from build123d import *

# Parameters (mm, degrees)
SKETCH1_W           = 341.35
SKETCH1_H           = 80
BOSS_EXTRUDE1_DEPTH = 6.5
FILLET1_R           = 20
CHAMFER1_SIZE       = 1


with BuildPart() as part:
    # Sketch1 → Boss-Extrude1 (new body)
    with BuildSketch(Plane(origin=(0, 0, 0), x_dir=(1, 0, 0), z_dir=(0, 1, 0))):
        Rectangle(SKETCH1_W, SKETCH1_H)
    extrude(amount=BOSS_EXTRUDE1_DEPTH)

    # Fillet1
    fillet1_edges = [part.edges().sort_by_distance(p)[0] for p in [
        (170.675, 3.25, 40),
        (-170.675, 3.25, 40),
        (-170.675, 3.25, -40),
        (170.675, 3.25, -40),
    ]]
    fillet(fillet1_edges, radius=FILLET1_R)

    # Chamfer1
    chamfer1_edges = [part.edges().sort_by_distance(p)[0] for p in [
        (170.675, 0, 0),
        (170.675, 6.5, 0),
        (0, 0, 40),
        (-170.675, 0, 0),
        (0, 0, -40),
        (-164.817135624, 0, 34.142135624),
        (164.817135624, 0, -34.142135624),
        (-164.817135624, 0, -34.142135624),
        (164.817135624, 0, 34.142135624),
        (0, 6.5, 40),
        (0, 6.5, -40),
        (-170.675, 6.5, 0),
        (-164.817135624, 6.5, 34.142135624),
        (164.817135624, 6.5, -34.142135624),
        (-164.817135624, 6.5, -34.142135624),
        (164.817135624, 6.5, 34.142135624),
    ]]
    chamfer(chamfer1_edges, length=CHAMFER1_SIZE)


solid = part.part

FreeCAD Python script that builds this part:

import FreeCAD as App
import Part
import Sketcher
Q = App.Units.Quantity


def edges_at(feature, points):
    """Names of the edges that pass closest to the given points."""
    edges = feature.Shape.Edges
    near = lambda p: min(range(len(edges)), key=lambda i: edges[i].distToShape(Part.Vertex(*p))[0])
    return sorted({f"Edge{near(p) + 1}" for p in points})

doc = App.newDocument("Part")
body = doc.addObject("PartDesign::Body", "Body")

# Sketch on XZ plane
sketch1 = body.newObject("Sketcher::SketchObject", "Sketch")
sketch1.AttachmentSupport = (doc.getObject("XZ_Plane"), [""])
sketch1.MapMode = "FlatFace"
sketch1.addGeometry([
    Part.LineSegment(App.Vector(-171, -40, 0), App.Vector(-171, 40, 0)),
    Part.LineSegment(App.Vector(-171, 40, 0), App.Vector(171, 40, 0)),
    Part.LineSegment(App.Vector(171, 40, 0), App.Vector(171, -40, 0)),
    Part.LineSegment(App.Vector(171, -40, 0), App.Vector(-171, -40, 0)),
], False)
sketch1.addConstraint([
    Sketcher.Constraint("Coincident", 0, 2, 1, 1),
    Sketcher.Constraint("Coincident", 1, 2, 2, 1),
    Sketcher.Constraint("Coincident", 2, 2, 3, 1),
    Sketcher.Constraint("Coincident", 3, 2, 0, 1),
    Sketcher.Constraint("Vertical", 0),
    Sketcher.Constraint("Horizontal", 1),
    Sketcher.Constraint("Vertical", 2),
    Sketcher.Constraint("Horizontal", 3),
    Sketcher.Constraint("Symmetric", 0, 2, 2, 2, -1, 1),
    Sketcher.Constraint("DistanceY", 0, 1, 0, 2, Q("80 mm")),
    Sketcher.Constraint("DistanceX", 1, 1, 1, 2, Q("341.35 mm")),
])
pad1 = body.newObject("PartDesign::Pad", "Pad")
pad1.Profile = sketch1
pad1.Length = 6.5
pad1.Reversed = True
doc.recompute()

fillet = body.newObject("PartDesign::Fillet", "Fillet")
fillet.Base = (pad1, edges_at(pad1, [
    (170.675, 3.25, 40),
    (-170.675, 3.25, 40),
    (-170.675, 3.25, -40),
    (170.675, 3.25, -40),
]))
fillet.Radius = 20
doc.recompute()

chamfer = body.newObject("PartDesign::Chamfer", "Chamfer")
chamfer.Base = (fillet, edges_at(fillet, [
    (170.675, 0, 0),
    (170.675, 6.5, 0),
    (0, 0, 40),
    (-170.675, 0, 0),
    (0, 0, -40),
    (-164.817, 0, 34.142),
    (164.817, 0, -34.142),
    (-164.817, 0, -34.142),
    (164.817, 0, 34.142),
    (0, 6.5, 40),
    (0, 6.5, -40),
    (-170.675, 6.5, 0),
    (-164.817, 6.5, 34.142),
    (164.817, 6.5, -34.142),
    (-164.817, 6.5, -34.142),
    (164.817, 6.5, 34.142),
]))
chamfer.Size = 1

doc.recompute()
